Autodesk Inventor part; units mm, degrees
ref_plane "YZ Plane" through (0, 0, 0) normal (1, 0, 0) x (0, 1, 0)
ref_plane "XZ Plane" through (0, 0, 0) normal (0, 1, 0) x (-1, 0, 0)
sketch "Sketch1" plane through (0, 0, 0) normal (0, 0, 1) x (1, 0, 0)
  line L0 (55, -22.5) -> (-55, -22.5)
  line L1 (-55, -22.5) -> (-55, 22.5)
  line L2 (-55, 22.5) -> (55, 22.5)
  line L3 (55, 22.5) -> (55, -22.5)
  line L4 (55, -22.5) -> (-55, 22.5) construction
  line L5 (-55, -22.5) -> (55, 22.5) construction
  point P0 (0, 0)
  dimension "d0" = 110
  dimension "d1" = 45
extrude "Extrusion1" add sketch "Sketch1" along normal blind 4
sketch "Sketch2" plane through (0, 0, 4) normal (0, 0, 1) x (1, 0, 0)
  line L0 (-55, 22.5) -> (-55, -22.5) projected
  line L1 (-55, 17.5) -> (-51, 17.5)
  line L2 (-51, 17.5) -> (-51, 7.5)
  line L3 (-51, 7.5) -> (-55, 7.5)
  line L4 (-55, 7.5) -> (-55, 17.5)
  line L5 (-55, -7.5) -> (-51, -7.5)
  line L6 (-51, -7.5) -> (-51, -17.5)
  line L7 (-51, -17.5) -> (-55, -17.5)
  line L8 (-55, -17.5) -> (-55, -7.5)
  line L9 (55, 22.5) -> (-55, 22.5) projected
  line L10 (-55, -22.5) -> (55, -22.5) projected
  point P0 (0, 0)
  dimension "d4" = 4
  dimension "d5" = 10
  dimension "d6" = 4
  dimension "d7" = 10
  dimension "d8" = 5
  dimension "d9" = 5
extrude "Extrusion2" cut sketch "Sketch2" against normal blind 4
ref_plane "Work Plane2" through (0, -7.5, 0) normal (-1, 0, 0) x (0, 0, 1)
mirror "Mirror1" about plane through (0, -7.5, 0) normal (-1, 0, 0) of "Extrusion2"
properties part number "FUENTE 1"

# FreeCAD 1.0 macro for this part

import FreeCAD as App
import Part
import Sketcher
Q = App.Units.Quantity

doc = App.newDocument("Part")
body = doc.addObject("PartDesign::Body", "Body")

# Sketch on XY plane
sketch1 = body.newObject("Sketcher::SketchObject", "Sketch")
sketch1.AttachmentSupport = (doc.getObject("XY_Plane"), [""])
sketch1.MapMode = "FlatFace"
sketch1.addGeometry([
    Part.LineSegment(App.Vector(-55, -22.5, 0), App.Vector(55, -22.5, 0)),
    Part.LineSegment(App.Vector(55, -22.5, 0), App.Vector(55, 22.5, 0)),
    Part.LineSegment(App.Vector(55, 22.5, 0), App.Vector(-55, 22.5, 0)),
    Part.LineSegment(App.Vector(-55, 22.5, 0), App.Vector(-55, -22.5, 0)),
], False)
sketch1.addConstraint([
    Sketcher.Constraint("Coincident", 0, 2, 1, 1),
    Sketcher.Constraint("Coincident", 1, 2, 2, 1),
    Sketcher.Constraint("Coincident", 2, 2, 3, 1),
    Sketcher.Constraint("Coincident", 3, 2, 0, 1),
    Sketcher.Constraint("Horizontal", 0),
    Sketcher.Constraint("Vertical", 1),
    Sketcher.Constraint("Horizontal", 2),
    Sketcher.Constraint("Vertical", 3),
    Sketcher.Constraint("Symmetric", 0, 2, 2, 2, -1, 1),
    Sketcher.Constraint("DistanceX", 0, 1, 0, 2, Q("110 mm")),
    Sketcher.Constraint("DistanceY", 1, 1, 1, 2, Q("45 mm")),
])
pad1 = body.newObject("PartDesign::Pad", "Pad")
pad1.Profile = sketch1
pad1.Length = 4

# Sketch on XY plane
sketch2 = body.newObject("Sketcher::SketchObject", "Sketch001")
sketch2.AttachmentSupport = (doc.getObject("XY_Plane"), [""])
sketch2.MapMode = "FlatFace"
sketch2.AttachmentOffset = App.Placement(App.Vector(0, 0, 4), App.Rotation())
sketch2.addGeometry([
    Part.LineSegment(App.Vector(-51, 17.5, 0), App.Vector(-55, 17.5, 0)),  # 0
    Part.LineSegment(App.Vector(-55, 17.5, 0), App.Vector(-55, 7.5, 0)),  # 1
    Part.LineSegment(App.Vector(-55, 7.5, 0), App.Vector(-51, 7.5, 0)),  # 2
    Part.LineSegment(App.Vector(-51, 7.5, 0), App.Vector(-51, 17.5, 0)),  # 3
    Part.LineSegment(App.Vector(-51, -7.5, 0), App.Vector(-55, -7.5, 0)),  # 4
    Part.LineSegment(App.Vector(-55, -7.5, 0), App.Vector(-55, -17.5, 0)),  # 5
    Part.LineSegment(App.Vector(-55, -17.5, 0), App.Vector(-51, -17.5, 0)),  # 6
    Part.LineSegment(App.Vector(-51, -17.5, 0), App.Vector(-51, -7.5, 0)),  # 7
], False)
sketch2.addConstraint([
    Sketcher.Constraint("Coincident", 0, 2, 1, 1),
    Sketcher.Constraint("Coincident", 1, 2, 2, 1),
    Sketcher.Constraint("Coincident", 2, 2, 3, 1),
    Sketcher.Constraint("Coincident", 3, 2, 0, 1),
    Sketcher.Constraint("Coincident", 4, 2, 5, 1),
    Sketcher.Constraint("Coincident", 5, 2, 6, 1),
    Sketcher.Constraint("Coincident", 6, 2, 7, 1),
    Sketcher.Constraint("Coincident", 7, 2, 4, 1),
    Sketcher.Constraint("Horizontal", 0),
    Sketcher.Constraint("Vertical", 1),
    Sketcher.Constraint("Horizontal", 2),
    Sketcher.Constraint("Vertical", 3),
    Sketcher.Constraint("Horizontal", 4),
    Sketcher.Constraint("Vertical", 5),
    Sketcher.Constraint("Horizontal", 6),
    Sketcher.Constraint("Vertical", 7),
    Sketcher.Constraint("Symmetric", 1, 2, 4, 2, -1),
    Sketcher.Constraint("Symmetric", 3, 2, 6, 2, -1),
    Sketcher.Constraint("DistanceX", 0, 2, 0, 1, Q("4 mm")),
    Sketcher.Constraint("DistanceY", 1, 2, 1, 1, Q("10 mm")),
    Sketcher.Constraint("DistanceX", 0, 2, -1, 1, Q("55 mm")),
    Sketcher.Constraint("DistanceY", 4, 2, 1, 2, Q("15 mm")),
])
pocket1 = body.newObject("PartDesign::Pocket", "Pocket")
pocket1.Profile = sketch2
pocket1.Length = 4
doc.recompute()

mirrored = body.newObject("PartDesign::Mirrored", "Mirrored")
mirrored.Originals = [pocket1]
mirrored.MirrorPlane = (doc.getObject("YZ_Plane"), [""])
body.Tip = mirrored

doc.recompute()
